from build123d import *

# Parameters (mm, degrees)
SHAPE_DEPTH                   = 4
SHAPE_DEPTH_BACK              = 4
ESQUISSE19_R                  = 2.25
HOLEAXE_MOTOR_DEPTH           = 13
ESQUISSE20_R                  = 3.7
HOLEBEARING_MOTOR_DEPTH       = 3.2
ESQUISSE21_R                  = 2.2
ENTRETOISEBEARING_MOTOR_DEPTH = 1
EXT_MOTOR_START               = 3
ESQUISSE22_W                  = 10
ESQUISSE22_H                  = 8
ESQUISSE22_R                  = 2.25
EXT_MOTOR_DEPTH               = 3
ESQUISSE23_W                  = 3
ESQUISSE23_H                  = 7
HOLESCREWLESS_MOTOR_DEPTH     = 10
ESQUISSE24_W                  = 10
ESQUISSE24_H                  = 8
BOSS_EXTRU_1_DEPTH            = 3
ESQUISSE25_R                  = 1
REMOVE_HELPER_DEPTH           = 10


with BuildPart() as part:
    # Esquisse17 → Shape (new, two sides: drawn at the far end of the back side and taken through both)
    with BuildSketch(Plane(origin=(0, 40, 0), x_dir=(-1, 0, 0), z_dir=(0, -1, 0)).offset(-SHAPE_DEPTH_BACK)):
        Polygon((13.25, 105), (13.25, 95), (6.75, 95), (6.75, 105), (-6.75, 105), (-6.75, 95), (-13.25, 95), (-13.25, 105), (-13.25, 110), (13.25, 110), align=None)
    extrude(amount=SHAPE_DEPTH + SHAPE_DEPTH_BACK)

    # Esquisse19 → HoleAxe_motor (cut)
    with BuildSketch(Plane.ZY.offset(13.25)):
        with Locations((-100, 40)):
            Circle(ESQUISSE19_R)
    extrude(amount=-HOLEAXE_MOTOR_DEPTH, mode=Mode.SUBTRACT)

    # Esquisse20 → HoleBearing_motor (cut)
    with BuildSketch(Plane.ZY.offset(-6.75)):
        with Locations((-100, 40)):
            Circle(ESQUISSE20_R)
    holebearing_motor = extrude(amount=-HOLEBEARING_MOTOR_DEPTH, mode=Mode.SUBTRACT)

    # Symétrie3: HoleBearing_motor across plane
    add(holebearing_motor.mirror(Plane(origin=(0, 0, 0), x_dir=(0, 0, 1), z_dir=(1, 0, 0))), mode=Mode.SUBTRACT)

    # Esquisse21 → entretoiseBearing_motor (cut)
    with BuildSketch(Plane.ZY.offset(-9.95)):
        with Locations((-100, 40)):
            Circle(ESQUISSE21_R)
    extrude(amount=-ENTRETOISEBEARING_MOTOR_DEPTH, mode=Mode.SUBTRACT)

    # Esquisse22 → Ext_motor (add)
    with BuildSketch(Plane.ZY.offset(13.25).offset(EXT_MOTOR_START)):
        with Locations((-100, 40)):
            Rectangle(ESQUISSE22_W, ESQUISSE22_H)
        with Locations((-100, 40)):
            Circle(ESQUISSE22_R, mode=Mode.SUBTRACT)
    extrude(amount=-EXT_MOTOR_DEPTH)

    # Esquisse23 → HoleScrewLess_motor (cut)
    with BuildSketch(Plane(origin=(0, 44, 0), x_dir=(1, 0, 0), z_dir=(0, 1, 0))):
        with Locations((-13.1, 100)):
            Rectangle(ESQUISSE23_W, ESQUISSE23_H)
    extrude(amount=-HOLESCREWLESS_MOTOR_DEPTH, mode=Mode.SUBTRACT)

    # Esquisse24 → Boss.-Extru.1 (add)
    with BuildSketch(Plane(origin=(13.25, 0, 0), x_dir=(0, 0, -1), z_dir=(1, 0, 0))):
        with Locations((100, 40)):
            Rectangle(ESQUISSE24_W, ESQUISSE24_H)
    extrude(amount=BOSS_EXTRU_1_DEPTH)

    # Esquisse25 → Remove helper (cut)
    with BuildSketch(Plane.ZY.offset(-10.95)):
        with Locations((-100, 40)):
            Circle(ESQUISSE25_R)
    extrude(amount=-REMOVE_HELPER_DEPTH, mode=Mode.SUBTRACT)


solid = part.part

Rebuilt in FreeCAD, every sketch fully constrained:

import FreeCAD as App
import Part
import Sketcher

V = App.Vector

doc = App.newDocument("Part")
body = doc.addObject("PartDesign::Body", "Body")

# Sketch on XZ plane
sketch1 = body.newObject("Sketcher::SketchObject", "Sketch")
sketch1.AttachmentSupport = (doc.getObject("XZ_Plane"), [""])
sketch1.MapMode = "FlatFace"
sketch1.AttachmentOffset = App.Placement(V(0, 0, -40), App.Rotation())
sketch1.addGeometry([
    Part.LineSegment(V(-13.25, -95, 0), V(-13.25, -110, 0)),  # 0
    Part.LineSegment(V(-13.25, -110, 0), V(13.25, -110, 0)),  # 1
    Part.LineSegment(V(13.25, -110, 0), V(13.25, -95, 0)),  # 2
    Part.LineSegment(V(13.25, -95, 0), V(6.75, -95, 0)),  # 3
    Part.LineSegment(V(6.75, -95, 0), V(6.75, -105, 0)),  # 4
    Part.LineSegment(V(6.75, -105, 0), V(-6.75, -105, 0)),  # 5
    Part.LineSegment(V(-6.75, -105, 0), V(-6.75, -95, 0)),  # 6
    Part.LineSegment(V(-6.75, -95, 0), V(-13.25, -95, 0)),  # 7
], False)
sketch1.addConstraint([
    Sketcher.Constraint("Coincident", 0, 2, 1, 1),
    Sketcher.Constraint("Coincident", 1, 2, 2, 1),
    Sketcher.Constraint("Coincident", 2, 2, 3, 1),
    Sketcher.Constraint("Coincident", 3, 2, 4, 1),
    Sketcher.Constraint("Coincident", 4, 2, 5, 1),
    Sketcher.Constraint("Coincident", 5, 2, 6, 1),
    Sketcher.Constraint("Coincident", 6, 2, 7, 1),
    Sketcher.Constraint("Coincident", 7, 2, 0, 1),
    Sketcher.Constraint("Vertical", 0),
    Sketcher.Constraint("Horizontal", 1),
    Sketcher.Constraint("Vertical", 2),
    Sketcher.Constraint("Horizontal", 3),
    Sketcher.Constraint("Vertical", 4),
    Sketcher.Constraint("Horizontal", 5),
    Sketcher.Constraint("Vertical", 6),
    Sketcher.Constraint("Horizontal", 7),
    Sketcher.Constraint("Symmetric", 3, 2, 6, 2, -2),
    Sketcher.Constraint("Equal", 3, 7),
    Sketcher.Constraint("DistanceY", 0, 2, 0, 1, 15.0),
    Sketcher.Constraint("DistanceY", 4, 2, 4, 1, 10.0),
    Sketcher.Constraint("DistanceX", 1, 1, 1, 2, 26.5),
    Sketcher.Constraint("DistanceX", 3, 2, 3, 1, 6.5),
    Sketcher.Constraint("DistanceY", 0, 2, -1, 1, 110.0),
])
pad1 = body.newObject("PartDesign::Pad", "Pad")
pad1.Profile = sketch1
pad1.Type = "TwoLengths"
pad1.Length = 4
pad1.Length2 = 4

# Sketch on YZ plane
sketch2 = body.newObject("Sketcher::SketchObject", "Sketch001")
sketch2.AttachmentSupport = (doc.getObject("YZ_Plane"), [""])
sketch2.MapMode = "FlatFace"
sketch2.AttachmentOffset = App.Placement(V(0, 0, -13.25), App.Rotation())
sketch2.addGeometry(Part.Circle(V(40, -100, 0), V(0, 0, 1), 2.25), False)
sketch2.addConstraint([
    Sketcher.Constraint("Diameter", 0, 4.5),
    Sketcher.Constraint("DistanceX", -1, 1, 0, 3, 40.0),
    Sketcher.Constraint("DistanceY", 0, 3, -1, 1, 100.0),
])
pocket1 = body.newObject("PartDesign::Pocket", "Pocket")
pocket1.Profile = sketch2
pocket1.Length = 13
pocket1.Reversed = True

# Sketch on YZ plane
sketch3 = body.newObject("Sketcher::SketchObject", "Sketch002")
sketch3.AttachmentSupport = (doc.getObject("YZ_Plane"), [""])
sketch3.MapMode = "FlatFace"
sketch3.AttachmentOffset = App.Placement(V(0, 0, 6.75), App.Rotation())
sketch3.addGeometry(Part.Circle(V(40, -100, 0), V(0, 0, 1), 3.7), False)
sketch3.addConstraint([
    Sketcher.Constraint("Diameter", 0, 7.4),
    Sketcher.Constraint("DistanceX", -1, 1, 0, 3, 40.0),
    Sketcher.Constraint("DistanceY", 0, 3, -1, 1, 100.0),
])
pocket2 = body.newObject("PartDesign::Pocket", "Pocket001")
pocket2.Profile = sketch3
pocket2.Length = 3.2
pocket2.Reversed = True
doc.recompute()

mirrored = body.newObject("PartDesign::Mirrored", "Mirrored")
mirrored.Originals = [pocket2]
mirrored.MirrorPlane = (doc.getObject("YZ_Plane"), [""])
body.Tip = mirrored

# Sketch on YZ plane
sketch4 = body.newObject("Sketcher::SketchObject", "Sketch003")
sketch4.AttachmentSupport = (doc.getObject("YZ_Plane"), [""])
sketch4.MapMode = "FlatFace"
sketch4.AttachmentOffset = App.Placement(V(0, 0, 9.95), App.Rotation())
sketch4.addGeometry(Part.Circle(V(40, -100, 0), V(0, 0, 1), 2.2), False)
sketch4.addConstraint([
    Sketcher.Constraint("Diameter", 0, 4.4),
    Sketcher.Constraint("DistanceX", -1, 1, 0, 3, 40.0),
    Sketcher.Constraint("DistanceY", 0, 3, -1, 1, 100.0),
])
pocket3 = body.newObject("PartDesign::Pocket", "Pocket002")
pocket3.Profile = sketch4
pocket3.Length = 1
pocket3.Reversed = True

# Sketch on YZ plane
sketch5 = body.newObject("Sketcher::SketchObject", "Sketch004")
sketch5.AttachmentSupport = (doc.getObject("YZ_Plane"), [""])
sketch5.MapMode = "FlatFace"
sketch5.AttachmentOffset = App.Placement(V(0, 0, -16.25), App.Rotation())
sketch5.addGeometry([
    Part.LineSegment(V(44, -105, 0), V(36, -105, 0)),  # 0
    Part.LineSegment(V(36, -105, 0), V(36, -95, 0)),  # 1
    Part.LineSegment(V(36, -95, 0), V(44, -95, 0)),  # 2
    Part.LineSegment(V(44, -95, 0), V(44, -105, 0)),  # 3
    Part.Circle(V(40, -100, 0), V(0, 0, 1), 2.25),  # 4
], False)
sketch5.addConstraint([
    Sketcher.Constraint("Coincident", 0, 2, 1, 1),
    Sketcher.Constraint("Coincident", 1, 2, 2, 1),
    Sketcher.Constraint("Coincident", 2, 2, 3, 1),
    Sketcher.Constraint("Coincident", 3, 2, 0, 1),
    Sketcher.Constraint("Horizontal", 0),
    Sketcher.Constraint("Vertical", 1),
    Sketcher.Constraint("Horizontal", 2),
    Sketcher.Constraint("Vertical", 3),
    Sketcher.Constraint("Diameter", 4, 4.5),
    Sketcher.Constraint("DistanceX", 0, 2, 0, 1, 8.0),
    Sketcher.Constraint("DistanceY", 1, 1, 1, 2, 10.0),
    Sketcher.Constraint("DistanceX", -1, 1, 4, 3, 40.0),
    Sketcher.Constraint("DistanceY", 4, 3, -1, 1, 100.0),
    Sketcher.Constraint("DistanceX", -1, 1, 0, 2, 36.0),
    Sketcher.Constraint("DistanceY", 0, 2, -1, 1, 105.0),
])
pad2 = body.newObject("PartDesign::Pad", "Pad001")
pad2.Profile = sketch5
pad2.Length = 3

# Sketch on XZ plane
sketch6 = body.newObject("Sketcher::SketchObject", "Sketch005")
sketch6.AttachmentSupport = (doc.getObject("XZ_Plane"), [""])
sketch6.MapMode = "FlatFace"
sketch6.AttachmentOffset = App.Placement(V(0, 0, -44), App.Rotation())
sketch6.addGeometry([
    Part.LineSegment(V(-14.6, -103.5, 0), V(-14.6, -96.5, 0)),
    Part.LineSegment(V(-14.6, -96.5, 0), V(-11.6, -96.5, 0)),
    Part.LineSegment(V(-11.6, -96.5, 0), V(-11.6, -103.5, 0)),
    Part.LineSegment(V(-11.6, -103.5, 0), V(-14.6, -103.5, 0)),
], False)
sketch6.addConstraint([
    Sketcher.Constraint("Coincident", 0, 2, 1, 1),
    Sketcher.Constraint("Coincident", 1, 2, 2, 1),
    Sketcher.Constraint("Coincident", 2, 2, 3, 1),
    Sketcher.Constraint("Coincident", 3, 2, 0, 1),
    Sketcher.Constraint("Vertical", 0),
    Sketcher.Constraint("Horizontal", 1),
    Sketcher.Constraint("Vertical", 2),
    Sketcher.Constraint("Horizontal", 3),
    Sketcher.Constraint("DistanceX", 1, 1, 1, 2, 3.0),
    Sketcher.Constraint("DistanceY", 0, 1, 0, 2, 7.0),
    Sketcher.Constraint("DistanceX", 0, 2, -1, 1, 14.6),
    Sketcher.Constraint("DistanceY", 0, 2, -1, 1, 96.5),
])
pocket4 = body.newObject("PartDesign::Pocket", "Pocket003")
pocket4.Profile = sketch6
pocket4.Length = 10
pocket4.Reversed = True

# Sketch on YZ plane
sketch7 = body.newObject("Sketcher::SketchObject", "Sketch006")
sketch7.AttachmentSupport = (doc.getObject("YZ_Plane"), [""])
sketch7.MapMode = "FlatFace"
sketch7.AttachmentOffset = App.Placement(V(0, 0, 13.25), App.Rotation())
sketch7.addGeometry([
    Part.LineSegment(V(44, -95, 0), V(36, -95, 0)),
    Part.LineSegment(V(36, -95, 0), V(36, -105, 0)),
    Part.LineSegment(V(36, -105, 0), V(44, -105, 0)),
    Part.LineSegment(V(44, -105, 0), V(44, -95, 0)),
], False)
sketch7.addConstraint([
    Sketcher.Constraint("Coincident", 0, 2, 1, 1),
    Sketcher.Constraint("Coincident", 1, 2, 2, 1),
    Sketcher.Constraint("Coincident", 2, 2, 3, 1),
    Sketcher.Constraint("Coincident", 3, 2, 0, 1),
    Sketcher.Constraint("Horizontal", 0),
    Sketcher.Constraint("Vertical", 1),
    Sketcher.Constraint("Horizontal", 2),
    Sketcher.Constraint("Vertical", 3),
    Sketcher.Constraint("DistanceX", 0, 2, 0, 1, 8.0),
    Sketcher.Constraint("DistanceY", 1, 2, 1, 1, 10.0),
    Sketcher.Constraint("DistanceX", -1, 1, 0, 2, 36.0),
    Sketcher.Constraint("DistanceY", 0, 2, -1, 1, 95.0),
])
pad3 = body.newObject("PartDesign::Pad", "Pad002")
pad3.Profile = sketch7
pad3.Length = 3

# Sketch on YZ plane
sketch8 = body.newObject("Sketcher::SketchObject", "Sketch007")
sketch8.AttachmentSupport = (doc.getObject("YZ_Plane"), [""])
sketch8.MapMode = "FlatFace"
sketch8.AttachmentOffset = App.Placement(V(0, 0, 10.95), App.Rotation())
sketch8.addGeometry(Part.Circle(V(40, -100, 0), V(0, 0, 1), 1), False)
sketch8.addConstraint([
    Sketcher.Constraint("Diameter", 0, 2.0),
    Sketcher.Constraint("DistanceX", -1, 1, 0, 3, 40.0),
    Sketcher.Constraint("DistanceY", 0, 3, -1, 1, 100.0),
])
pocket5 = body.newObject("PartDesign::Pocket", "Pocket004")
pocket5.Profile = sketch8
pocket5.Length = 10
pocket5.Reversed = True

doc.recompute()
